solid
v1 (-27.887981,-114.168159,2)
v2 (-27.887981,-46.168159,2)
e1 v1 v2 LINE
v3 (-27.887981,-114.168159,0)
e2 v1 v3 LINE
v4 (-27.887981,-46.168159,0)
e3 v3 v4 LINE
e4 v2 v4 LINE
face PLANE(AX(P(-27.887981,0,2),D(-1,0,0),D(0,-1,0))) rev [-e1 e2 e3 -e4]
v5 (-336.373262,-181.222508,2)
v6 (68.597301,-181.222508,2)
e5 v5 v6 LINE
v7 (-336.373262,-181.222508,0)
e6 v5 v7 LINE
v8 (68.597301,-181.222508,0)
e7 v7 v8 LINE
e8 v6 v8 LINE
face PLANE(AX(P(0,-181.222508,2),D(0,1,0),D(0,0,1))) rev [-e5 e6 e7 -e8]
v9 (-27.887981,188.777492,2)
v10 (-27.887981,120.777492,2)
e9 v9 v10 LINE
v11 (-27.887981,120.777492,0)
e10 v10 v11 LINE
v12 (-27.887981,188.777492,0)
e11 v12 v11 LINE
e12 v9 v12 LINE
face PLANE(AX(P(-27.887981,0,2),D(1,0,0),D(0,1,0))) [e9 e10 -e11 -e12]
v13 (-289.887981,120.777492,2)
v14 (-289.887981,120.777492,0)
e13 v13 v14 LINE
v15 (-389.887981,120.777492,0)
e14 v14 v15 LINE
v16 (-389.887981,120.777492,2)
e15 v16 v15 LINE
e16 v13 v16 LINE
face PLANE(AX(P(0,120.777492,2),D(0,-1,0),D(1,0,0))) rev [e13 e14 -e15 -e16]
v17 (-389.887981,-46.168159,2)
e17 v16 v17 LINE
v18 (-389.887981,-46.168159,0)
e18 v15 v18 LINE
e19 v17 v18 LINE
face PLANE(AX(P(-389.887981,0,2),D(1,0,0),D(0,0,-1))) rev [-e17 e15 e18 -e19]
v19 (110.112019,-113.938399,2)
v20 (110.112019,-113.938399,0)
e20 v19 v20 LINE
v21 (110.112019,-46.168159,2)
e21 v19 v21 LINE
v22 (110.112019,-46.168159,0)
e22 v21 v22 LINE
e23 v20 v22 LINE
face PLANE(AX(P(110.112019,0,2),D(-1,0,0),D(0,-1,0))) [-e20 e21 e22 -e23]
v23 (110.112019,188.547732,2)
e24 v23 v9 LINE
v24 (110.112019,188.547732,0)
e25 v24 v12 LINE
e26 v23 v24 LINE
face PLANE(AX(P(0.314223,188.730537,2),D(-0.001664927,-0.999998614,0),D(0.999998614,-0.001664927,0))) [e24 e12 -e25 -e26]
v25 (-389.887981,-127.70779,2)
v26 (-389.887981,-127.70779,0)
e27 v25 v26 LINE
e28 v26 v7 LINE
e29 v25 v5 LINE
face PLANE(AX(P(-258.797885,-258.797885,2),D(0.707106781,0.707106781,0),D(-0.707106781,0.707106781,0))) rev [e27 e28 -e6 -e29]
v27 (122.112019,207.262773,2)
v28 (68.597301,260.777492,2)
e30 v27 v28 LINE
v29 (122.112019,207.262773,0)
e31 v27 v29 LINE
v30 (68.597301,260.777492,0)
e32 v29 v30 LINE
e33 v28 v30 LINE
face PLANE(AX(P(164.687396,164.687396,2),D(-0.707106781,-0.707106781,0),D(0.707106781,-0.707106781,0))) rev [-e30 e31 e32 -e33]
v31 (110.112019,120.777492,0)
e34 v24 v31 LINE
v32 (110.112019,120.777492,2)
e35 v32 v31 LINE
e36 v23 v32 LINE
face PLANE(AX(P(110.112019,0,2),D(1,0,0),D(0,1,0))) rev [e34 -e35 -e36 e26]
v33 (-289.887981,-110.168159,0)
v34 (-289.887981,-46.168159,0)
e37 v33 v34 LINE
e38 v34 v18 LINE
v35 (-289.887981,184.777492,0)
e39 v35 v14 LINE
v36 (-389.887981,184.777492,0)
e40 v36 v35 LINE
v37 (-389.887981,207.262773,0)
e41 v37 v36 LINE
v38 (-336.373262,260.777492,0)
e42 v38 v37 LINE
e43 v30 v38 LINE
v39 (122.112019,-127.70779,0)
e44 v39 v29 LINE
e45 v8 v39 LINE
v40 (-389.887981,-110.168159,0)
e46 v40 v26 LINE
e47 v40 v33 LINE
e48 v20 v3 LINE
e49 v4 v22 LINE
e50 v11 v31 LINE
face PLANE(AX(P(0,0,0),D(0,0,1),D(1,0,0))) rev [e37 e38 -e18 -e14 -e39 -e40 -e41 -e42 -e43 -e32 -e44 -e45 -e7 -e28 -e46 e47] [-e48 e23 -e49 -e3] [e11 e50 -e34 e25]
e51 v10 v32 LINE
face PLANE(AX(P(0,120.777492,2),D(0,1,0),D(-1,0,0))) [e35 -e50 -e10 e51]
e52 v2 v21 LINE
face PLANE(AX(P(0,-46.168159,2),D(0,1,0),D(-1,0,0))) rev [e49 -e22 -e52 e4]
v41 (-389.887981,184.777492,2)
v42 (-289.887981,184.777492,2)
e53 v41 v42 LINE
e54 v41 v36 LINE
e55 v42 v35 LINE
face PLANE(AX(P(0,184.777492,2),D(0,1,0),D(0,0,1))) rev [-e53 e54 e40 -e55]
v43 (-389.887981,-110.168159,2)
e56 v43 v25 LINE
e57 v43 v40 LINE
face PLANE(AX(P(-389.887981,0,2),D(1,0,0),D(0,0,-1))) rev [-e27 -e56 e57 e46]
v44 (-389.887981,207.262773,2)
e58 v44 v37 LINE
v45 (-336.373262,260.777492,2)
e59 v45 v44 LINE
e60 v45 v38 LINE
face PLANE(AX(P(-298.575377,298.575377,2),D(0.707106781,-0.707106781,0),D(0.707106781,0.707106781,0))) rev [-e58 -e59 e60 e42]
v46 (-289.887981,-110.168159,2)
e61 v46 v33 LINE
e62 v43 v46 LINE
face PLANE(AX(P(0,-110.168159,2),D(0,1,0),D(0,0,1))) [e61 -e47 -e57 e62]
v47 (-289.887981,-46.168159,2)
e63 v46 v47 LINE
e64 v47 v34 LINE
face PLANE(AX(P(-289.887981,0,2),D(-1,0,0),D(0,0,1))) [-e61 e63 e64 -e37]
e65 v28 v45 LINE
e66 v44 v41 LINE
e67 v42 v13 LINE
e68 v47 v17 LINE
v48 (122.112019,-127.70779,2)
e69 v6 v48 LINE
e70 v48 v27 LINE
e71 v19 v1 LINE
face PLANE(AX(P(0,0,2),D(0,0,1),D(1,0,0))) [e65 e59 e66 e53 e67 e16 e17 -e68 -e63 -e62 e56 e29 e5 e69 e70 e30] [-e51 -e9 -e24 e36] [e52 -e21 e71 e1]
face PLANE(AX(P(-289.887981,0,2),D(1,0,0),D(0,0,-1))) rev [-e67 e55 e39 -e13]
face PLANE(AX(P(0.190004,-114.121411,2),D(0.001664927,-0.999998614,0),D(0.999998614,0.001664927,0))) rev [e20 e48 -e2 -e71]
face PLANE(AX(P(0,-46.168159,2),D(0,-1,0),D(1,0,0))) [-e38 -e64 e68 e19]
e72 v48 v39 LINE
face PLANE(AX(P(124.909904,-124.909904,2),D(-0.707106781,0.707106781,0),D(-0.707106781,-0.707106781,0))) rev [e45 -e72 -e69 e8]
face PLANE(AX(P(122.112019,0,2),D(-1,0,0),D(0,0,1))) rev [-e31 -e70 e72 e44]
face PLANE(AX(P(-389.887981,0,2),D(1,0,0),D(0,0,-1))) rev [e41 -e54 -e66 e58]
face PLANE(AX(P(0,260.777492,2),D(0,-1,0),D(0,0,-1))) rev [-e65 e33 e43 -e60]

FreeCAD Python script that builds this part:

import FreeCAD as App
import Part
import Sketcher
from FreeCAD import Vector
Q = App.Units.Quantity

doc = App.newDocument("Part")
body = doc.addObject("PartDesign::Body", "Body")

# Sketch on XY plane
sketch1 = doc.addObject("Sketcher::SketchObject", "Sketch")
body.addObject(sketch1)
sketch1.AttachmentSupport = (doc.XY_Plane, [""])
sketch1.MapMode = "FlatFace"
sketch1.addGeometry(Part.LineSegment(Vector(69, 261, 0), Vector(-336, 261, 0)), False)
sketch1.addGeometry(Part.LineSegment(Vector(-336, 261, 0), Vector(-390, 207, 0)), False)
sketch1.addGeometry(Part.LineSegment(Vector(-390, 207, 0), Vector(-390, 185, 0)), False)
sketch1.addGeometry(Part.LineSegment(Vector(-390, 185, 0), Vector(-290, 185, 0)), False)
sketch1.addGeometry(Part.LineSegment(Vector(-290, 185, 0), Vector(-290, 121, 0)), False)
sketch1.addGeometry(Part.LineSegment(Vector(-290, 121, 0), Vector(-390, 121, 0)), False)
sketch1.addGeometry(Part.LineSegment(Vector(-390, 121, 0), Vector(-390, -46, 0)), False)
sketch1.addGeometry(Part.LineSegment(Vector(-390, -46, 0), Vector(-290, -46, 0)), False)
sketch1.addGeometry(Part.LineSegment(Vector(-290, -46, 0), Vector(-290, -110, 0)), False)
sketch1.addGeometry(Part.LineSegment(Vector(-290, -110, 0), Vector(-390, -110, 0)), False)
sketch1.addGeometry(Part.LineSegment(Vector(-390, -110, 0), Vector(-390, -128, 0)), False)
sketch1.addGeometry(Part.LineSegment(Vector(-390, -128, 0), Vector(-336, -181, 0)), False)
sketch1.addGeometry(Part.LineSegment(Vector(-336, -181, 0), Vector(69, -181, 0)), False)
sketch1.addGeometry(Part.LineSegment(Vector(69, -181, 0), Vector(122, -128, 0)), False)
sketch1.addGeometry(Part.LineSegment(Vector(122, -128, 0), Vector(122, 207, 0)), False)
sketch1.addGeometry(Part.LineSegment(Vector(122, 207, 0), Vector(69, 261, 0)), False)
sketch1.addGeometry(Part.LineSegment(Vector(110, -114, 0), Vector(-28, -114, 0)), False)
sketch1.addGeometry(Part.LineSegment(Vector(-28, -114, 0), Vector(-28, -46, 0)), False)
sketch1.addGeometry(Part.LineSegment(Vector(-28, -46, 0), Vector(110, -46, 0)), False)
sketch1.addGeometry(Part.LineSegment(Vector(110, -46, 0), Vector(110, -114, 0)), False)
sketch1.addGeometry(Part.LineSegment(Vector(110, 189, 0), Vector(110, 121, 0)), False)
sketch1.addGeometry(Part.LineSegment(Vector(110, 121, 0), Vector(-28, 121, 0)), False)
sketch1.addGeometry(Part.LineSegment(Vector(-28, 121, 0), Vector(-28, 189, 0)), False)
sketch1.addGeometry(Part.LineSegment(Vector(-28, 189, 0), Vector(110, 189, 0)), False)
sketch1.addConstraint(Sketcher.Constraint("Coincident", 0, 2, 1, 1))
sketch1.addConstraint(Sketcher.Constraint("Coincident", 1, 2, 2, 1))
sketch1.addConstraint(Sketcher.Constraint("Coincident", 2, 2, 3, 1))
sketch1.addConstraint(Sketcher.Constraint("Coincident", 3, 2, 4, 1))
sketch1.addConstraint(Sketcher.Constraint("Coincident", 4, 2, 5, 1))
sketch1.addConstraint(Sketcher.Constraint("Coincident", 5, 2, 6, 1))
sketch1.addConstraint(Sketcher.Constraint("Coincident", 6, 2, 7, 1))
sketch1.addConstraint(Sketcher.Constraint("Coincident", 7, 2, 8, 1))
sketch1.addConstraint(Sketcher.Constraint("Coincident", 8, 2, 9, 1))
sketch1.addConstraint(Sketcher.Constraint("Coincident", 9, 2, 10, 1))
sketch1.addConstraint(Sketcher.Constraint("Coincident", 10, 2, 11, 1))
sketch1.addConstraint(Sketcher.Constraint("Coincident", 11, 2, 12, 1))
sketch1.addConstraint(Sketcher.Constraint("Coincident", 12, 2, 13, 1))
sketch1.addConstraint(Sketcher.Constraint("Coincident", 13, 2, 14, 1))
sketch1.addConstraint(Sketcher.Constraint("Coincident", 14, 2, 15, 1))
sketch1.addConstraint(Sketcher.Constraint("Coincident", 15, 2, 0, 1))
sketch1.addConstraint(Sketcher.Constraint("Coincident", 16, 2, 17, 1))
sketch1.addConstraint(Sketcher.Constraint("Coincident", 17, 2, 18, 1))
sketch1.addConstraint(Sketcher.Constraint("Coincident", 18, 2, 19, 1))
sketch1.addConstraint(Sketcher.Constraint("Coincident", 19, 2, 16, 1))
sketch1.addConstraint(Sketcher.Constraint("Coincident", 20, 2, 21, 1))
sketch1.addConstraint(Sketcher.Constraint("Coincident", 21, 2, 22, 1))
sketch1.addConstraint(Sketcher.Constraint("Coincident", 22, 2, 23, 1))
sketch1.addConstraint(Sketcher.Constraint("Coincident", 23, 2, 20, 1))
sketch1.addConstraint(Sketcher.Constraint("Horizontal", 0))
sketch1.addConstraint(Sketcher.Constraint("Vertical", 2))
sketch1.addConstraint(Sketcher.Constraint("Horizontal", 3))
sketch1.addConstraint(Sketcher.Constraint("Vertical", 4))
sketch1.addConstraint(Sketcher.Constraint("Horizontal", 5))
sketch1.addConstraint(Sketcher.Constraint("Vertical", 6))
sketch1.addConstraint(Sketcher.Constraint("Horizontal", 7))
sketch1.addConstraint(Sketcher.Constraint("Vertical", 8))
sketch1.addConstraint(Sketcher.Constraint("Horizontal", 9))
sketch1.addConstraint(Sketcher.Constraint("Vertical", 10))
sketch1.addConstraint(Sketcher.Constraint("Horizontal", 12))
sketch1.addConstraint(Sketcher.Constraint("Vertical", 14))
sketch1.addConstraint(Sketcher.Constraint("Vertical", 17))
sketch1.addConstraint(Sketcher.Constraint("Horizontal", 18))
sketch1.addConstraint(Sketcher.Constraint("Vertical", 19))
sketch1.addConstraint(Sketcher.Constraint("Vertical", 20))
sketch1.addConstraint(Sketcher.Constraint("Horizontal", 21))
sketch1.addConstraint(Sketcher.Constraint("Vertical", 22))
sketch1.addConstraint(Sketcher.Constraint("Perpendicular", 1, 11))
sketch1.addConstraint(Sketcher.Constraint("Perpendicular", 11, 13))
sketch1.addConstraint(Sketcher.Constraint("Perpendicular", 13, 15))
sketch1.addConstraint(Sketcher.Constraint("Horizontal", 10, 2, 13, 2))
sketch1.addConstraint(Sketcher.Constraint("Horizontal", 1, 2, 14, 2))
sketch1.addConstraint(Sketcher.Constraint("Horizontal", 7, 2, 17, 2))
sketch1.addConstraint(Sketcher.Constraint("Horizontal", 5, 2, 20, 2))
sketch1.addConstraint(Sketcher.Constraint("Vertical", 2, 2, 5, 2))
sketch1.addConstraint(Sketcher.Constraint("Vertical", 4, 2, 7, 2))
sketch1.addConstraint(Sketcher.Constraint("Vertical", 6, 2, 9, 2))
sketch1.addConstraint(Sketcher.Constraint("Vertical", 0, 2, 11, 2))
sketch1.addConstraint(Sketcher.Constraint("Vertical", 12, 2, 15, 2))
sketch1.addConstraint(Sketcher.Constraint("Vertical", 19, 2, 20, 2))
sketch1.addConstraint(Sketcher.Constraint("Vertical", 17, 2, 21, 2))
sketch1.addConstraint(Sketcher.Constraint("Equal", 4, 8))
sketch1.addConstraint(Sketcher.Constraint("Equal", 19, 20))
sketch1.addConstraint(Sketcher.Constraint("Equal", 17, 22))
sketch1.addConstraint(Sketcher.Constraint("DistanceX", 3, 1, 3, 2, Q("100 mm")))
sketch1.addConstraint(Sketcher.Constraint("DistanceX", 18, 1, 18, 2, Q("138 mm")))
sketch1.addConstraint(Sketcher.Constraint("DistanceY", 4, 2, 4, 1, Q("64 mm")))
sketch1.addConstraint(Sketcher.Constraint("DistanceY", 17, 1, 17, 2, Q("68 mm")))
sketch1.addConstraint(Sketcher.Constraint("DistanceY", 2, 2, 0, 2, Q("76 mm")))
sketch1.addConstraint(Sketcher.Constraint("DistanceX", 8, 2, 13, 2, Q("412 mm")))
sketch1.addConstraint(Sketcher.Constraint("DistanceX", 16, 2, 13, 2, Q("150 mm")))
sketch1.addConstraint(Sketcher.Constraint("DistanceY", 2, 2, 2, 1, Q("22.485281 mm")))
sketch1.addConstraint(Sketcher.Constraint("DistanceY", 6, 2, 6, 1, Q("166.945651 mm")))
sketch1.addConstraint(Sketcher.Constraint("DistanceY", 10, 2, 10, 1, Q("17.53963 mm")))
sketch1.addConstraint(Sketcher.Constraint("DistanceY", 19, 2, 19, 1, Q("67.77024 mm")))
sketch1.addConstraint(Sketcher.Constraint("DistanceX", -1, 1, 12, 2, Q("68.597301 mm")))
sketch1.addConstraint(Sketcher.Constraint("DistanceY", 19, 2, -1, 1, Q("113.938399 mm")))
pad1 = doc.addObject("PartDesign::Pad", "Pad")
body.addObject(pad1)
pad1.Profile = sketch1
pad1.Length = 2

doc.recompute()
